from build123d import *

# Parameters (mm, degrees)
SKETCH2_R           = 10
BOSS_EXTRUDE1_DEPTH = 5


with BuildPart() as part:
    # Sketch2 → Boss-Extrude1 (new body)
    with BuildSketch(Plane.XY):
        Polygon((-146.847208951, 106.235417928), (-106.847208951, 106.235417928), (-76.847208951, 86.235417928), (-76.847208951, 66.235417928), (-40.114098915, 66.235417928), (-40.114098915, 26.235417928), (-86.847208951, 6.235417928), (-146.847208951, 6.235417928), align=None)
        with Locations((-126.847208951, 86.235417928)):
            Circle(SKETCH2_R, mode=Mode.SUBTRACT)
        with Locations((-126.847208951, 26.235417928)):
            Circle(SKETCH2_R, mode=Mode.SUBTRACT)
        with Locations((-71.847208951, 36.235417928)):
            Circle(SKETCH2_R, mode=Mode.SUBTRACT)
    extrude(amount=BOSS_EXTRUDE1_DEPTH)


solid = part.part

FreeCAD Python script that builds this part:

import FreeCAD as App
import Part
import Sketcher

V = App.Vector


def add_polygon(sketch, points):
    """Adds a closed chain of lines whose ends are joined by coincident constraints."""
    first, n = sketch.GeometryCount, len(points)
    for a, b in zip(points, points[1:] + points[:1]):
        sketch.addGeometry(Part.LineSegment(App.Vector(*a, 0), App.Vector(*b, 0)), False)
    for i in range(n):
        sketch.addConstraint(Sketcher.Constraint("Coincident", first + i, 2, first + (i + 1) % n, 1))

doc = App.newDocument("Part")
body = doc.addObject("PartDesign::Body", "Body")

# Sketch on XY plane
sketch1 = body.newObject("Sketcher::SketchObject", "Sketch")
sketch1.AttachmentSupport = (doc.getObject("XY_Plane"), [""])
sketch1.MapMode = "FlatFace"
add_polygon(sketch1, [(-106.847209, 106.235418), (-146.847209, 106.235418), (-146.847209, 6.235418), (-86.847209, 6.235418), (-40.114099, 26.235418), (-40.114099, 66.235418), (-76.847209, 66.235418), (-76.847209, 86.235418)])  # lines 0-7
sketch1.addGeometry(Part.Circle(V(-71.847209, 36.235418, 0), V(0, 0, 1), 10), False)  # 8
sketch1.addGeometry(Part.Circle(V(-126.847209, 26.235418, 0), V(0, 0, 1), 10), False)  # 9
sketch1.addGeometry(Part.Circle(V(-126.847209, 86.235418, 0), V(0, 0, 1), 10), False)  # 10
sketch1.addConstraint(Sketcher.Constraint("Horizontal", 0))
sketch1.addConstraint(Sketcher.Constraint("Vertical", 1))
sketch1.addConstraint(Sketcher.Constraint("Horizontal", 2))
sketch1.addConstraint(Sketcher.Constraint("Vertical", 4))
sketch1.addConstraint(Sketcher.Constraint("Horizontal", 5))
sketch1.addConstraint(Sketcher.Constraint("Vertical", 6))
sketch1.addConstraint(Sketcher.Constraint("Equal", 8, 9))
sketch1.addConstraint(Sketcher.Constraint("Equal", 9, 10))
sketch1.addConstraint(Sketcher.Constraint("Horizontal", 9, 3, 3, 2))
sketch1.addConstraint(Sketcher.Constraint("Horizontal", 10, 3, 6, 2))
sketch1.addConstraint(Sketcher.Constraint("Vertical", 9, 3, 10, 3))
sketch1.addConstraint(Sketcher.Constraint("Equal", 0, 4))
sketch1.addConstraint(Sketcher.Constraint("Diameter", 8, 20.0))
sketch1.addConstraint(Sketcher.Constraint("DistanceX", 0, 2, 0, 1, 40.0))
sketch1.addConstraint(Sketcher.Constraint("DistanceX", 2, 1, 2, 2, 60.0))
sketch1.addConstraint(Sketcher.Constraint("DistanceY", 1, 2, 1, 1, 100.0))
sketch1.addConstraint(Sketcher.Constraint("DistanceY", 6, 1, 6, 2, 20.0))
sketch1.addConstraint(Sketcher.Constraint("DistanceX", 9, 3, 8, 3, 55.0))
sketch1.addConstraint(Sketcher.Constraint("DistanceY", 9, 3, 8, 3, 10.0))
sketch1.addConstraint(Sketcher.Constraint("DistanceX", 0, 2, 10, 3, 20.0))
sketch1.addConstraint(Sketcher.Constraint("DistanceY", 10, 3, 0, 2, 20.0))
sketch1.addConstraint(Sketcher.Constraint("DistanceX", 5, 2, 8, 3, 5.0))
sketch1.addConstraint(Sketcher.Constraint("Distance", 3, 50.832899))
sketch1.addConstraint(Sketcher.Constraint("DistanceX", 3, 2, -1, 1, 40.114099))
sketch1.addConstraint(Sketcher.Constraint("DistanceY", -1, 1, 8, 3, 36.235418))
pad1 = body.newObject("PartDesign::Pad", "Pad")
pad1.Profile = sketch1
pad1.Length = 5

doc.recompute()
